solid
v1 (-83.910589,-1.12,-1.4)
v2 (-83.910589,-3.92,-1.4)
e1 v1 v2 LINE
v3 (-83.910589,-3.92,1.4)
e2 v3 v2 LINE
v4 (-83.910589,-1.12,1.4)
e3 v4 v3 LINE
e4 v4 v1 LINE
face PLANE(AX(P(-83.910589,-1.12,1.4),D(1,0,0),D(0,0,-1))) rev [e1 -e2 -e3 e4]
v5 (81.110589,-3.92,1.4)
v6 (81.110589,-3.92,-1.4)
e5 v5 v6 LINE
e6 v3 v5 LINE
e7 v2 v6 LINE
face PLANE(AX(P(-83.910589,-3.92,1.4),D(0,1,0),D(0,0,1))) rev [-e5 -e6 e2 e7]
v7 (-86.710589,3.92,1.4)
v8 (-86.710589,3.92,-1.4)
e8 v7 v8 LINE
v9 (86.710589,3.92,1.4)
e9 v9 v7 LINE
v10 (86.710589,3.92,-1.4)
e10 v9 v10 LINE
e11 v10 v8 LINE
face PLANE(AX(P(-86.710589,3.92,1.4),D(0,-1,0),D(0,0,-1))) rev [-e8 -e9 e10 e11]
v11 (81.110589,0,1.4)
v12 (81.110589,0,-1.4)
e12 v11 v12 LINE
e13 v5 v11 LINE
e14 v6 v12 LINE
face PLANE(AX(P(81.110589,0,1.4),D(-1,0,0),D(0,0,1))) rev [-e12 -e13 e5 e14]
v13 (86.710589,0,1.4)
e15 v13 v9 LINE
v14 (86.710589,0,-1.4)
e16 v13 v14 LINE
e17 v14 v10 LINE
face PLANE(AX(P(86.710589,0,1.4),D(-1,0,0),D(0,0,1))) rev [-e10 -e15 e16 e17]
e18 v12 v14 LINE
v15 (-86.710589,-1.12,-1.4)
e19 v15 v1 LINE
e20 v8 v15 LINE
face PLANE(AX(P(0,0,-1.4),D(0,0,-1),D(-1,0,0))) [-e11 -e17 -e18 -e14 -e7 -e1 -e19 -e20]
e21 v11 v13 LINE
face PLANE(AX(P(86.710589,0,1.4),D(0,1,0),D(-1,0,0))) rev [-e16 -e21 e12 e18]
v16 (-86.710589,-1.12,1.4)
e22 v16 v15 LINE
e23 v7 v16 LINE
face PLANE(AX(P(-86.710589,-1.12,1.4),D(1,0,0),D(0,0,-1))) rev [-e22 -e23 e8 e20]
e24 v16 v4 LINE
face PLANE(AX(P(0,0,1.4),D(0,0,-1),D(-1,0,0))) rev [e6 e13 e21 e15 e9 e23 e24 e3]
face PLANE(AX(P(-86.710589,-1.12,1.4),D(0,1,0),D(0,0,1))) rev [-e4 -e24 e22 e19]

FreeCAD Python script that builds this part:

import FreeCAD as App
import Part
import Sketcher

V = App.Vector


def add_polygon(sketch, points):
    """Adds a closed chain of lines whose ends are joined by coincident constraints."""
    first, n = sketch.GeometryCount, len(points)
    for a, b in zip(points, points[1:] + points[:1]):
        sketch.addGeometry(Part.LineSegment(App.Vector(*a, 0), App.Vector(*b, 0)), False)
    for i in range(n):
        sketch.addConstraint(Sketcher.Constraint("Coincident", first + i, 2, first + (i + 1) % n, 1))

doc = App.newDocument("Part")
body = doc.addObject("PartDesign::Body", "Body")

# Sketch on XY plane
sketch1 = doc.addObject("Sketcher::SketchObject", "Sketch")
body.addObject(sketch1)
sketch1.AttachmentSupport = (doc.XY_Plane, [""])
sketch1.MapMode = "FlatFace"
add_polygon(sketch1, [(81.1, 0), (86.7, 0), (86.7, 3.9), (-86.7, 3.9), (-86.7, -1.1), (-83.9, -1.1), (-83.9, -3.9), (81.1, -3.9)])  # lines 0-7
sketch1.addConstraint([
    Sketcher.Constraint("Horizontal", 0),
    Sketcher.Constraint("Vertical", 1),
    Sketcher.Constraint("Horizontal", 2),
    Sketcher.Constraint("Vertical", 3),
    Sketcher.Constraint("Horizontal", 4),
    Sketcher.Constraint("Vertical", 5),
    Sketcher.Constraint("Horizontal", 6),
    Sketcher.Constraint("Vertical", 7),
    Sketcher.Constraint("PointOnObject", 0, 2, -1),
    Sketcher.Constraint("Equal", 4, 5),
    Sketcher.Constraint("Equal", 1, 7),
    Sketcher.Constraint("DistanceX", 0, 1, 0, 2, 5.6),
    Sketcher.Constraint("DistanceX", 4, 1, 4, 2, 2.8),
    Sketcher.Constraint("DistanceY", 1, 1, 1, 2, 3.92),
    Sketcher.Constraint("DistanceX", 2, 2, 2, 1, 173.421177),
    Sketcher.Constraint("DistanceX", -1, 1, 0, 2, 86.710589),
])
pad1 = doc.addObject("PartDesign::Pad", "Pad")
body.addObject(pad1)
pad1.Profile = sketch1
pad1.Length = 2.8
pad1.Midplane = True

doc.recompute()
